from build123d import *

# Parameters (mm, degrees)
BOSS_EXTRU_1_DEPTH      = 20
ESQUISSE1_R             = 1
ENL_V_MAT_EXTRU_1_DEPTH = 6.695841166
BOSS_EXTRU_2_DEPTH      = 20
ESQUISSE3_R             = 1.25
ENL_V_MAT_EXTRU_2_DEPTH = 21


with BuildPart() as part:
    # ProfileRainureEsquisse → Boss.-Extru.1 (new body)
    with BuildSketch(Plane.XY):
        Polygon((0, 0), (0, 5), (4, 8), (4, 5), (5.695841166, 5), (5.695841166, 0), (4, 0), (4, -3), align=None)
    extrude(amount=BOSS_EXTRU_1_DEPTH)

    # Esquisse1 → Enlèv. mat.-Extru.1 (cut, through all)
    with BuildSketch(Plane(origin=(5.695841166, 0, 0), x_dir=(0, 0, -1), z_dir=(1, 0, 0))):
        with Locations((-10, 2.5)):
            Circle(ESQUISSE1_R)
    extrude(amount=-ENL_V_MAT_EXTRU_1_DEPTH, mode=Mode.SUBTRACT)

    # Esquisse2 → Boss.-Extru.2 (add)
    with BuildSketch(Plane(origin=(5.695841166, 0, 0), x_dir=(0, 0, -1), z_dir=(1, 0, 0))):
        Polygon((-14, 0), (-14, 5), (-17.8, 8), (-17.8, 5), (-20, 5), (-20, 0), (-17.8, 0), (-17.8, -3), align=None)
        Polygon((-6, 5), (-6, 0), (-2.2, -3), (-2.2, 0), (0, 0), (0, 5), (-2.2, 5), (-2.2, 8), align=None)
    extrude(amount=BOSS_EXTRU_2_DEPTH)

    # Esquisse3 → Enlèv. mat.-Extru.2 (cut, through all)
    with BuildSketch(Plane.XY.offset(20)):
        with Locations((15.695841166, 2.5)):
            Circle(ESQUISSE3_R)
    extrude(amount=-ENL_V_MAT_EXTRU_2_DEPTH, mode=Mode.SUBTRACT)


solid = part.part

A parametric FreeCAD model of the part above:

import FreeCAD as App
import Part
import Sketcher
from FreeCAD import Vector


def add_polygon(sketch, points):
    """Adds a closed chain of lines whose ends are joined by coincident constraints."""
    first, n = sketch.GeometryCount, len(points)
    for a, b in zip(points, points[1:] + points[:1]):
        sketch.addGeometry(Part.LineSegment(App.Vector(*a, 0), App.Vector(*b, 0)), False)
    for i in range(n):
        sketch.addConstraint(Sketcher.Constraint("Coincident", first + i, 2, first + (i + 1) % n, 1))

doc = App.newDocument("Part")
body = doc.addObject("PartDesign::Body", "Body")

# Sketch on XY plane
sketch1 = body.newObject("Sketcher::SketchObject", "Sketch")
sketch1.AttachmentSupport = (doc.getObject("XY_Plane"), [""])
sketch1.MapMode = "FlatFace"
add_polygon(sketch1, [(0, 5), (0, 0), (4, -3), (4, 0), (5.695841, 0), (5.695841, 5), (4, 5), (4, 8)])  # lines 0-7
sketch1.addConstraint([
    Sketcher.Constraint("Vertical", 0),
    Sketcher.Constraint("Vertical", 2),
    Sketcher.Constraint("Horizontal", 3),
    Sketcher.Constraint("Vertical", 4),
    Sketcher.Constraint("Horizontal", 5),
    Sketcher.Constraint("Vertical", 6),
    Sketcher.Constraint("Coincident", 0, 2, -1, 1),
    Sketcher.Constraint("PointOnObject", 2, 2, -1),
    Sketcher.Constraint("Horizontal", 5, 2, 7, 2),
    Sketcher.Constraint("Vertical", 2, 2, 5, 2),
    Sketcher.Constraint("Equal", 2, 6),
    Sketcher.Constraint("DistanceY", 0, 2, 0, 1, 5.0),
    Sketcher.Constraint("DistanceY", 2, 1, 2, 2, 3.0),
    Sketcher.Constraint("Distance", 1, 5.0),
    Sketcher.Constraint("DistanceX", 3, 1, 3, 2, 1.695841),
])
pad1 = body.newObject("PartDesign::Pad", "Pad")
pad1.Profile = sketch1
pad1.Length = 20

# Sketch on YZ plane
sketch2 = body.newObject("Sketcher::SketchObject", "Sketch001")
sketch2.AttachmentSupport = (doc.getObject("YZ_Plane"), [""])
sketch2.MapMode = "FlatFace"
sketch2.AttachmentOffset = App.Placement(Vector(0, 0, 5.695841), App.Rotation())
sketch2.addGeometry(Part.Circle(Vector(2.5, 10, 0), Vector(0, 0, 1), 1), False)
sketch2.addConstraint([
    Sketcher.Constraint("Diameter", 0, 2.0),
    Sketcher.Constraint("DistanceY", -1, 1, 0, 3, 10.0),
    Sketcher.Constraint("DistanceX", -1, 1, 0, 3, 2.5),
])
pocket1 = body.newObject("PartDesign::Pocket", "Pocket")
pocket1.Profile = sketch2
pocket1.Type = "ThroughAll"

# Sketch on YZ plane
sketch3 = body.newObject("Sketcher::SketchObject", "Sketch002")
sketch3.AttachmentSupport = (doc.getObject("YZ_Plane"), [""])
sketch3.MapMode = "FlatFace"
sketch3.AttachmentOffset = App.Placement(Vector(0, 0, 5.695841), App.Rotation())
add_polygon(sketch3, [(0, 14), (5, 14), (8, 17.8), (5, 17.8), (5, 20), (0, 20), (0, 17.8), (-3, 17.8)])  # lines 0-7
add_polygon(sketch3, [(5, 6), (0, 6), (-3, 2.2), (0, 2.2), (0, 0), (5, 0), (5, 2.2), (8, 2.2)])  # lines 8-15
sketch3.addConstraint([
    Sketcher.Constraint("Horizontal", 0),
    Sketcher.Constraint("Horizontal", 2),
    Sketcher.Constraint("Vertical", 3),
    Sketcher.Constraint("Horizontal", 4),
    Sketcher.Constraint("Vertical", 5),
    Sketcher.Constraint("Horizontal", 6),
    Sketcher.Constraint("Horizontal", 8),
    Sketcher.Constraint("Horizontal", 10),
    Sketcher.Constraint("Vertical", 11),
    Sketcher.Constraint("Horizontal", 12),
    Sketcher.Constraint("Vertical", 13),
    Sketcher.Constraint("Horizontal", 14),
    Sketcher.Constraint("Coincident", 11, 2, -1, 1),
    Sketcher.Constraint("PointOnObject", 4, 2, -2),
    Sketcher.Constraint("PointOnObject", 7, 2, -2),
    Sketcher.Constraint("PointOnObject", 8, 2, -2),
    Sketcher.Constraint("Parallel", 1, 9),
    Sketcher.Constraint("Parallel", 7, 15),
    Sketcher.Constraint("Horizontal", 2, 2, 5, 2),
    Sketcher.Constraint("Horizontal", 10, 2, 13, 2),
    Sketcher.Constraint("Vertical", 0, 2, 2, 2),
    Sketcher.Constraint("Vertical", 6, 2, 9, 2),
    Sketcher.Constraint("Vertical", 3, 2, 12, 2),
    Sketcher.Constraint("Vertical", 1, 2, 14, 2),
    Sketcher.Constraint("Vertical", 13, 2, 15, 2),
    Sketcher.Constraint("Equal", 5, 11),
    Sketcher.Constraint("DistanceX", 0, 1, 0, 2, 5.0),
    Sketcher.Constraint("DistanceX", 2, 2, 2, 1, 3.0),
    Sketcher.Constraint("DistanceY", 3, 1, 3, 2, 2.2),
    Sketcher.Constraint("DistanceY", -1, 1, 0, 2, 14.0),
    Sketcher.Constraint("DistanceY", -1, 1, 3, 2, 20.0),
])
pad2 = body.newObject("PartDesign::Pad", "Pad001")
pad2.Profile = sketch3
pad2.Length = 20

# Sketch on XY plane
sketch4 = body.newObject("Sketcher::SketchObject", "Sketch003")
sketch4.AttachmentSupport = (doc.getObject("XY_Plane"), [""])
sketch4.MapMode = "FlatFace"
sketch4.AttachmentOffset = App.Placement(Vector(0, 0, 20), App.Rotation())
sketch4.addGeometry(Part.Circle(Vector(15.695841, 2.5, 0), Vector(0, 0, 1), 1.25), False)
sketch4.addConstraint([
    Sketcher.Constraint("Diameter", 0, 2.5),
    Sketcher.Constraint("DistanceY", -1, 1, 0, 3, 2.5),
    Sketcher.Constraint("DistanceX", -1, 1, 0, 3, 15.695841),
])
pocket2 = body.newObject("PartDesign::Pocket", "Pocket001")
pocket2.Profile = sketch4
pocket2.Type = "ThroughAll"

doc.recompute()
